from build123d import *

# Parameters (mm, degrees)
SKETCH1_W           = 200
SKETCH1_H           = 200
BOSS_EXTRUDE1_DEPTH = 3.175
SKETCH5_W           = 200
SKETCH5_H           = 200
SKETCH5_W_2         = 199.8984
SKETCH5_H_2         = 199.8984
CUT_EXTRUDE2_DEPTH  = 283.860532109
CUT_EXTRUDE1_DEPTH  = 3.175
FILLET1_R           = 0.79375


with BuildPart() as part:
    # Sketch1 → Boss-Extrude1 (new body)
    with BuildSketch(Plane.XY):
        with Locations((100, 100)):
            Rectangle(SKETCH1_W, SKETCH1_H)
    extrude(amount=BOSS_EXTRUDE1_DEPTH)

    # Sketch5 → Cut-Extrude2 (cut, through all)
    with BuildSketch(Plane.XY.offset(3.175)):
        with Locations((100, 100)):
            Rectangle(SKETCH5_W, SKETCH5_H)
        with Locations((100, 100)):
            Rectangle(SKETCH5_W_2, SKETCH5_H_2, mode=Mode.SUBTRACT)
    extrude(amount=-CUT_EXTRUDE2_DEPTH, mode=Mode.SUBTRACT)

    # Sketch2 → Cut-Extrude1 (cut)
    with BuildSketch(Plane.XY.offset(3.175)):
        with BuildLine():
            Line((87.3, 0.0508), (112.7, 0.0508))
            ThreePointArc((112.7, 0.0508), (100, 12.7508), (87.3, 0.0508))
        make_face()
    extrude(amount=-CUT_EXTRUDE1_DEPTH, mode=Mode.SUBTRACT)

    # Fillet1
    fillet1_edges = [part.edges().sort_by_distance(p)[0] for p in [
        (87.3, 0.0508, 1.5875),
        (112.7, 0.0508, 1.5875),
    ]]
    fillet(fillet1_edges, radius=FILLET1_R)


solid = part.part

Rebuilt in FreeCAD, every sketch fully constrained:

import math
import FreeCAD as App
import Part
import Sketcher
from FreeCAD import Vector
Q = App.Units.Quantity


def edges_at(feature, points):
    """Names of the edges that pass closest to the given points."""
    edges = feature.Shape.Edges
    near = lambda p: min(range(len(edges)), key=lambda i: edges[i].distToShape(Part.Vertex(*p))[0])
    return sorted({f"Edge{near(p) + 1}" for p in points})


def add_polygon(sketch, points):
    """Adds a closed chain of lines whose ends are joined by coincident constraints."""
    first, n = sketch.GeometryCount, len(points)
    for a, b in zip(points, points[1:] + points[:1]):
        sketch.addGeometry(Part.LineSegment(App.Vector(*a, 0), App.Vector(*b, 0)), False)
    for i in range(n):
        sketch.addConstraint(Sketcher.Constraint("Coincident", first + i, 2, first + (i + 1) % n, 1))

doc = App.newDocument("Part")
body = doc.addObject("PartDesign::Body", "Body")

sketch1 = body.newObject("Sketcher::SketchObject", "Sketch")
sketch1.AttachmentSupport = (doc.getObject("XY_Plane"), [""])
sketch1.MapMode = "FlatFace"
add_polygon(sketch1, [(0, 200), (0, 0), (200, 0), (200, 200)])
sketch1.addConstraint(Sketcher.Constraint("Vertical", 0))
sketch1.addConstraint(Sketcher.Constraint("Horizontal", 1))
sketch1.addConstraint(Sketcher.Constraint("Vertical", 2))
sketch1.addConstraint(Sketcher.Constraint("Horizontal", 3))
sketch1.addConstraint(Sketcher.Constraint("Coincident", 0, 2, -1, 1))
sketch1.addConstraint(Sketcher.Constraint("Equal", 3, 0))
sketch1.addConstraint(Sketcher.Constraint("DistanceX", 1, 1, 1, 2, 200.0))
pad1 = body.newObject("PartDesign::Pad", "Pad")
pad1.Profile = sketch1
pad1.Length = Q("0.125 in")

sketch2 = body.newObject("Sketcher::SketchObject", "Sketch001")
sketch2.AttachmentSupport = (doc.getObject("XY_Plane"), [""])
sketch2.MapMode = "FlatFace"
sketch2.AttachmentOffset = App.Placement(Vector(0, 0, 0.125 * 25.4), App.Rotation())
add_polygon(sketch2, [(0, 200), (0, 0), (200, 0), (200, 200)])
add_polygon(sketch2, [(200, 0), (0, 0), (0, 200), (200, 200)])
sketch2.addConstraint(Sketcher.Constraint("Vertical", 0))
sketch2.addConstraint(Sketcher.Constraint("Horizontal", 1))
sketch2.addConstraint(Sketcher.Constraint("Vertical", 2))
sketch2.addConstraint(Sketcher.Constraint("Horizontal", 3))
sketch2.addConstraint(Sketcher.Constraint("Horizontal", 4))
sketch2.addConstraint(Sketcher.Constraint("Vertical", 5))
sketch2.addConstraint(Sketcher.Constraint("Horizontal", 6))
sketch2.addConstraint(Sketcher.Constraint("Vertical", 7))
sketch2.addConstraint(Sketcher.Constraint("Coincident", 0, 2, -1, 1))
sketch2.addConstraint(Sketcher.Constraint("Equal", 3, 0))
sketch2.addConstraint(Sketcher.Constraint("Equal", 6, 5))
sketch2.addConstraint(Sketcher.Constraint("DistanceX", -1, 1, 4, 2, Q("0.002 in")))
sketch2.addConstraint(Sketcher.Constraint("DistanceY", -1, 1, 4, 2, Q("0.002 in")))
sketch2.addConstraint(Sketcher.Constraint("DistanceY", 5, 2, 3, 2, Q("0.002 in")))
sketch2.addConstraint(Sketcher.Constraint("DistanceX", 1, 1, 1, 2, 200.0))
pocket1 = body.newObject("PartDesign::Pocket", "Pocket")
pocket1.Profile = sketch2
pocket1.Type = "ThroughAll"

sketch3 = body.newObject("Sketcher::SketchObject", "Sketch002")
sketch3.AttachmentSupport = (doc.getObject("XY_Plane"), [""])
sketch3.MapMode = "FlatFace"
sketch3.AttachmentOffset = App.Placement(Vector(0, 0, 0.125 * 25.4), App.Rotation())
sketch3.addGeometry(Part.LineSegment(Vector(87, 0, 0), Vector(113, 0, 0)), False)
sketch3.addGeometry(Part.ArcOfCircle(Part.Circle(Vector(100, 0, 0), Vector(0, 0, 1), 13), math.radians(0), math.radians(180)), False)
sketch3.addConstraint(Sketcher.Constraint("Coincident", 0, 1, 1, 2))
sketch3.addConstraint(Sketcher.Constraint("Coincident", 1, 1, 0, 2))
sketch3.addConstraint(Sketcher.Constraint("Horizontal", 0))
sketch3.addConstraint(Sketcher.Constraint("Horizontal", 1, 3, 0, 1))
sketch3.addConstraint(Sketcher.Constraint("Radius", 1, Q("0.5 in")))
sketch3.addConstraint(Sketcher.Constraint("DistanceY", -1, 1, 1, 3, Q("0.002 in")))
sketch3.addConstraint(Sketcher.Constraint("DistanceX", -1, 1, 1, 3, 100.0))
pocket2 = body.newObject("PartDesign::Pocket", "Pocket001")
pocket2.Profile = sketch3
pocket2.Length = Q("0.125 in")
doc.recompute()

fillet = body.newObject("PartDesign::Fillet", "Fillet")
fillet.Base = (pocket2, edges_at(pocket2, [(87.3, 0.051, 1.587), (112.7, 0.051, 1.587)]))
fillet.Radius = Q("0.03125 in")

doc.recompute()
